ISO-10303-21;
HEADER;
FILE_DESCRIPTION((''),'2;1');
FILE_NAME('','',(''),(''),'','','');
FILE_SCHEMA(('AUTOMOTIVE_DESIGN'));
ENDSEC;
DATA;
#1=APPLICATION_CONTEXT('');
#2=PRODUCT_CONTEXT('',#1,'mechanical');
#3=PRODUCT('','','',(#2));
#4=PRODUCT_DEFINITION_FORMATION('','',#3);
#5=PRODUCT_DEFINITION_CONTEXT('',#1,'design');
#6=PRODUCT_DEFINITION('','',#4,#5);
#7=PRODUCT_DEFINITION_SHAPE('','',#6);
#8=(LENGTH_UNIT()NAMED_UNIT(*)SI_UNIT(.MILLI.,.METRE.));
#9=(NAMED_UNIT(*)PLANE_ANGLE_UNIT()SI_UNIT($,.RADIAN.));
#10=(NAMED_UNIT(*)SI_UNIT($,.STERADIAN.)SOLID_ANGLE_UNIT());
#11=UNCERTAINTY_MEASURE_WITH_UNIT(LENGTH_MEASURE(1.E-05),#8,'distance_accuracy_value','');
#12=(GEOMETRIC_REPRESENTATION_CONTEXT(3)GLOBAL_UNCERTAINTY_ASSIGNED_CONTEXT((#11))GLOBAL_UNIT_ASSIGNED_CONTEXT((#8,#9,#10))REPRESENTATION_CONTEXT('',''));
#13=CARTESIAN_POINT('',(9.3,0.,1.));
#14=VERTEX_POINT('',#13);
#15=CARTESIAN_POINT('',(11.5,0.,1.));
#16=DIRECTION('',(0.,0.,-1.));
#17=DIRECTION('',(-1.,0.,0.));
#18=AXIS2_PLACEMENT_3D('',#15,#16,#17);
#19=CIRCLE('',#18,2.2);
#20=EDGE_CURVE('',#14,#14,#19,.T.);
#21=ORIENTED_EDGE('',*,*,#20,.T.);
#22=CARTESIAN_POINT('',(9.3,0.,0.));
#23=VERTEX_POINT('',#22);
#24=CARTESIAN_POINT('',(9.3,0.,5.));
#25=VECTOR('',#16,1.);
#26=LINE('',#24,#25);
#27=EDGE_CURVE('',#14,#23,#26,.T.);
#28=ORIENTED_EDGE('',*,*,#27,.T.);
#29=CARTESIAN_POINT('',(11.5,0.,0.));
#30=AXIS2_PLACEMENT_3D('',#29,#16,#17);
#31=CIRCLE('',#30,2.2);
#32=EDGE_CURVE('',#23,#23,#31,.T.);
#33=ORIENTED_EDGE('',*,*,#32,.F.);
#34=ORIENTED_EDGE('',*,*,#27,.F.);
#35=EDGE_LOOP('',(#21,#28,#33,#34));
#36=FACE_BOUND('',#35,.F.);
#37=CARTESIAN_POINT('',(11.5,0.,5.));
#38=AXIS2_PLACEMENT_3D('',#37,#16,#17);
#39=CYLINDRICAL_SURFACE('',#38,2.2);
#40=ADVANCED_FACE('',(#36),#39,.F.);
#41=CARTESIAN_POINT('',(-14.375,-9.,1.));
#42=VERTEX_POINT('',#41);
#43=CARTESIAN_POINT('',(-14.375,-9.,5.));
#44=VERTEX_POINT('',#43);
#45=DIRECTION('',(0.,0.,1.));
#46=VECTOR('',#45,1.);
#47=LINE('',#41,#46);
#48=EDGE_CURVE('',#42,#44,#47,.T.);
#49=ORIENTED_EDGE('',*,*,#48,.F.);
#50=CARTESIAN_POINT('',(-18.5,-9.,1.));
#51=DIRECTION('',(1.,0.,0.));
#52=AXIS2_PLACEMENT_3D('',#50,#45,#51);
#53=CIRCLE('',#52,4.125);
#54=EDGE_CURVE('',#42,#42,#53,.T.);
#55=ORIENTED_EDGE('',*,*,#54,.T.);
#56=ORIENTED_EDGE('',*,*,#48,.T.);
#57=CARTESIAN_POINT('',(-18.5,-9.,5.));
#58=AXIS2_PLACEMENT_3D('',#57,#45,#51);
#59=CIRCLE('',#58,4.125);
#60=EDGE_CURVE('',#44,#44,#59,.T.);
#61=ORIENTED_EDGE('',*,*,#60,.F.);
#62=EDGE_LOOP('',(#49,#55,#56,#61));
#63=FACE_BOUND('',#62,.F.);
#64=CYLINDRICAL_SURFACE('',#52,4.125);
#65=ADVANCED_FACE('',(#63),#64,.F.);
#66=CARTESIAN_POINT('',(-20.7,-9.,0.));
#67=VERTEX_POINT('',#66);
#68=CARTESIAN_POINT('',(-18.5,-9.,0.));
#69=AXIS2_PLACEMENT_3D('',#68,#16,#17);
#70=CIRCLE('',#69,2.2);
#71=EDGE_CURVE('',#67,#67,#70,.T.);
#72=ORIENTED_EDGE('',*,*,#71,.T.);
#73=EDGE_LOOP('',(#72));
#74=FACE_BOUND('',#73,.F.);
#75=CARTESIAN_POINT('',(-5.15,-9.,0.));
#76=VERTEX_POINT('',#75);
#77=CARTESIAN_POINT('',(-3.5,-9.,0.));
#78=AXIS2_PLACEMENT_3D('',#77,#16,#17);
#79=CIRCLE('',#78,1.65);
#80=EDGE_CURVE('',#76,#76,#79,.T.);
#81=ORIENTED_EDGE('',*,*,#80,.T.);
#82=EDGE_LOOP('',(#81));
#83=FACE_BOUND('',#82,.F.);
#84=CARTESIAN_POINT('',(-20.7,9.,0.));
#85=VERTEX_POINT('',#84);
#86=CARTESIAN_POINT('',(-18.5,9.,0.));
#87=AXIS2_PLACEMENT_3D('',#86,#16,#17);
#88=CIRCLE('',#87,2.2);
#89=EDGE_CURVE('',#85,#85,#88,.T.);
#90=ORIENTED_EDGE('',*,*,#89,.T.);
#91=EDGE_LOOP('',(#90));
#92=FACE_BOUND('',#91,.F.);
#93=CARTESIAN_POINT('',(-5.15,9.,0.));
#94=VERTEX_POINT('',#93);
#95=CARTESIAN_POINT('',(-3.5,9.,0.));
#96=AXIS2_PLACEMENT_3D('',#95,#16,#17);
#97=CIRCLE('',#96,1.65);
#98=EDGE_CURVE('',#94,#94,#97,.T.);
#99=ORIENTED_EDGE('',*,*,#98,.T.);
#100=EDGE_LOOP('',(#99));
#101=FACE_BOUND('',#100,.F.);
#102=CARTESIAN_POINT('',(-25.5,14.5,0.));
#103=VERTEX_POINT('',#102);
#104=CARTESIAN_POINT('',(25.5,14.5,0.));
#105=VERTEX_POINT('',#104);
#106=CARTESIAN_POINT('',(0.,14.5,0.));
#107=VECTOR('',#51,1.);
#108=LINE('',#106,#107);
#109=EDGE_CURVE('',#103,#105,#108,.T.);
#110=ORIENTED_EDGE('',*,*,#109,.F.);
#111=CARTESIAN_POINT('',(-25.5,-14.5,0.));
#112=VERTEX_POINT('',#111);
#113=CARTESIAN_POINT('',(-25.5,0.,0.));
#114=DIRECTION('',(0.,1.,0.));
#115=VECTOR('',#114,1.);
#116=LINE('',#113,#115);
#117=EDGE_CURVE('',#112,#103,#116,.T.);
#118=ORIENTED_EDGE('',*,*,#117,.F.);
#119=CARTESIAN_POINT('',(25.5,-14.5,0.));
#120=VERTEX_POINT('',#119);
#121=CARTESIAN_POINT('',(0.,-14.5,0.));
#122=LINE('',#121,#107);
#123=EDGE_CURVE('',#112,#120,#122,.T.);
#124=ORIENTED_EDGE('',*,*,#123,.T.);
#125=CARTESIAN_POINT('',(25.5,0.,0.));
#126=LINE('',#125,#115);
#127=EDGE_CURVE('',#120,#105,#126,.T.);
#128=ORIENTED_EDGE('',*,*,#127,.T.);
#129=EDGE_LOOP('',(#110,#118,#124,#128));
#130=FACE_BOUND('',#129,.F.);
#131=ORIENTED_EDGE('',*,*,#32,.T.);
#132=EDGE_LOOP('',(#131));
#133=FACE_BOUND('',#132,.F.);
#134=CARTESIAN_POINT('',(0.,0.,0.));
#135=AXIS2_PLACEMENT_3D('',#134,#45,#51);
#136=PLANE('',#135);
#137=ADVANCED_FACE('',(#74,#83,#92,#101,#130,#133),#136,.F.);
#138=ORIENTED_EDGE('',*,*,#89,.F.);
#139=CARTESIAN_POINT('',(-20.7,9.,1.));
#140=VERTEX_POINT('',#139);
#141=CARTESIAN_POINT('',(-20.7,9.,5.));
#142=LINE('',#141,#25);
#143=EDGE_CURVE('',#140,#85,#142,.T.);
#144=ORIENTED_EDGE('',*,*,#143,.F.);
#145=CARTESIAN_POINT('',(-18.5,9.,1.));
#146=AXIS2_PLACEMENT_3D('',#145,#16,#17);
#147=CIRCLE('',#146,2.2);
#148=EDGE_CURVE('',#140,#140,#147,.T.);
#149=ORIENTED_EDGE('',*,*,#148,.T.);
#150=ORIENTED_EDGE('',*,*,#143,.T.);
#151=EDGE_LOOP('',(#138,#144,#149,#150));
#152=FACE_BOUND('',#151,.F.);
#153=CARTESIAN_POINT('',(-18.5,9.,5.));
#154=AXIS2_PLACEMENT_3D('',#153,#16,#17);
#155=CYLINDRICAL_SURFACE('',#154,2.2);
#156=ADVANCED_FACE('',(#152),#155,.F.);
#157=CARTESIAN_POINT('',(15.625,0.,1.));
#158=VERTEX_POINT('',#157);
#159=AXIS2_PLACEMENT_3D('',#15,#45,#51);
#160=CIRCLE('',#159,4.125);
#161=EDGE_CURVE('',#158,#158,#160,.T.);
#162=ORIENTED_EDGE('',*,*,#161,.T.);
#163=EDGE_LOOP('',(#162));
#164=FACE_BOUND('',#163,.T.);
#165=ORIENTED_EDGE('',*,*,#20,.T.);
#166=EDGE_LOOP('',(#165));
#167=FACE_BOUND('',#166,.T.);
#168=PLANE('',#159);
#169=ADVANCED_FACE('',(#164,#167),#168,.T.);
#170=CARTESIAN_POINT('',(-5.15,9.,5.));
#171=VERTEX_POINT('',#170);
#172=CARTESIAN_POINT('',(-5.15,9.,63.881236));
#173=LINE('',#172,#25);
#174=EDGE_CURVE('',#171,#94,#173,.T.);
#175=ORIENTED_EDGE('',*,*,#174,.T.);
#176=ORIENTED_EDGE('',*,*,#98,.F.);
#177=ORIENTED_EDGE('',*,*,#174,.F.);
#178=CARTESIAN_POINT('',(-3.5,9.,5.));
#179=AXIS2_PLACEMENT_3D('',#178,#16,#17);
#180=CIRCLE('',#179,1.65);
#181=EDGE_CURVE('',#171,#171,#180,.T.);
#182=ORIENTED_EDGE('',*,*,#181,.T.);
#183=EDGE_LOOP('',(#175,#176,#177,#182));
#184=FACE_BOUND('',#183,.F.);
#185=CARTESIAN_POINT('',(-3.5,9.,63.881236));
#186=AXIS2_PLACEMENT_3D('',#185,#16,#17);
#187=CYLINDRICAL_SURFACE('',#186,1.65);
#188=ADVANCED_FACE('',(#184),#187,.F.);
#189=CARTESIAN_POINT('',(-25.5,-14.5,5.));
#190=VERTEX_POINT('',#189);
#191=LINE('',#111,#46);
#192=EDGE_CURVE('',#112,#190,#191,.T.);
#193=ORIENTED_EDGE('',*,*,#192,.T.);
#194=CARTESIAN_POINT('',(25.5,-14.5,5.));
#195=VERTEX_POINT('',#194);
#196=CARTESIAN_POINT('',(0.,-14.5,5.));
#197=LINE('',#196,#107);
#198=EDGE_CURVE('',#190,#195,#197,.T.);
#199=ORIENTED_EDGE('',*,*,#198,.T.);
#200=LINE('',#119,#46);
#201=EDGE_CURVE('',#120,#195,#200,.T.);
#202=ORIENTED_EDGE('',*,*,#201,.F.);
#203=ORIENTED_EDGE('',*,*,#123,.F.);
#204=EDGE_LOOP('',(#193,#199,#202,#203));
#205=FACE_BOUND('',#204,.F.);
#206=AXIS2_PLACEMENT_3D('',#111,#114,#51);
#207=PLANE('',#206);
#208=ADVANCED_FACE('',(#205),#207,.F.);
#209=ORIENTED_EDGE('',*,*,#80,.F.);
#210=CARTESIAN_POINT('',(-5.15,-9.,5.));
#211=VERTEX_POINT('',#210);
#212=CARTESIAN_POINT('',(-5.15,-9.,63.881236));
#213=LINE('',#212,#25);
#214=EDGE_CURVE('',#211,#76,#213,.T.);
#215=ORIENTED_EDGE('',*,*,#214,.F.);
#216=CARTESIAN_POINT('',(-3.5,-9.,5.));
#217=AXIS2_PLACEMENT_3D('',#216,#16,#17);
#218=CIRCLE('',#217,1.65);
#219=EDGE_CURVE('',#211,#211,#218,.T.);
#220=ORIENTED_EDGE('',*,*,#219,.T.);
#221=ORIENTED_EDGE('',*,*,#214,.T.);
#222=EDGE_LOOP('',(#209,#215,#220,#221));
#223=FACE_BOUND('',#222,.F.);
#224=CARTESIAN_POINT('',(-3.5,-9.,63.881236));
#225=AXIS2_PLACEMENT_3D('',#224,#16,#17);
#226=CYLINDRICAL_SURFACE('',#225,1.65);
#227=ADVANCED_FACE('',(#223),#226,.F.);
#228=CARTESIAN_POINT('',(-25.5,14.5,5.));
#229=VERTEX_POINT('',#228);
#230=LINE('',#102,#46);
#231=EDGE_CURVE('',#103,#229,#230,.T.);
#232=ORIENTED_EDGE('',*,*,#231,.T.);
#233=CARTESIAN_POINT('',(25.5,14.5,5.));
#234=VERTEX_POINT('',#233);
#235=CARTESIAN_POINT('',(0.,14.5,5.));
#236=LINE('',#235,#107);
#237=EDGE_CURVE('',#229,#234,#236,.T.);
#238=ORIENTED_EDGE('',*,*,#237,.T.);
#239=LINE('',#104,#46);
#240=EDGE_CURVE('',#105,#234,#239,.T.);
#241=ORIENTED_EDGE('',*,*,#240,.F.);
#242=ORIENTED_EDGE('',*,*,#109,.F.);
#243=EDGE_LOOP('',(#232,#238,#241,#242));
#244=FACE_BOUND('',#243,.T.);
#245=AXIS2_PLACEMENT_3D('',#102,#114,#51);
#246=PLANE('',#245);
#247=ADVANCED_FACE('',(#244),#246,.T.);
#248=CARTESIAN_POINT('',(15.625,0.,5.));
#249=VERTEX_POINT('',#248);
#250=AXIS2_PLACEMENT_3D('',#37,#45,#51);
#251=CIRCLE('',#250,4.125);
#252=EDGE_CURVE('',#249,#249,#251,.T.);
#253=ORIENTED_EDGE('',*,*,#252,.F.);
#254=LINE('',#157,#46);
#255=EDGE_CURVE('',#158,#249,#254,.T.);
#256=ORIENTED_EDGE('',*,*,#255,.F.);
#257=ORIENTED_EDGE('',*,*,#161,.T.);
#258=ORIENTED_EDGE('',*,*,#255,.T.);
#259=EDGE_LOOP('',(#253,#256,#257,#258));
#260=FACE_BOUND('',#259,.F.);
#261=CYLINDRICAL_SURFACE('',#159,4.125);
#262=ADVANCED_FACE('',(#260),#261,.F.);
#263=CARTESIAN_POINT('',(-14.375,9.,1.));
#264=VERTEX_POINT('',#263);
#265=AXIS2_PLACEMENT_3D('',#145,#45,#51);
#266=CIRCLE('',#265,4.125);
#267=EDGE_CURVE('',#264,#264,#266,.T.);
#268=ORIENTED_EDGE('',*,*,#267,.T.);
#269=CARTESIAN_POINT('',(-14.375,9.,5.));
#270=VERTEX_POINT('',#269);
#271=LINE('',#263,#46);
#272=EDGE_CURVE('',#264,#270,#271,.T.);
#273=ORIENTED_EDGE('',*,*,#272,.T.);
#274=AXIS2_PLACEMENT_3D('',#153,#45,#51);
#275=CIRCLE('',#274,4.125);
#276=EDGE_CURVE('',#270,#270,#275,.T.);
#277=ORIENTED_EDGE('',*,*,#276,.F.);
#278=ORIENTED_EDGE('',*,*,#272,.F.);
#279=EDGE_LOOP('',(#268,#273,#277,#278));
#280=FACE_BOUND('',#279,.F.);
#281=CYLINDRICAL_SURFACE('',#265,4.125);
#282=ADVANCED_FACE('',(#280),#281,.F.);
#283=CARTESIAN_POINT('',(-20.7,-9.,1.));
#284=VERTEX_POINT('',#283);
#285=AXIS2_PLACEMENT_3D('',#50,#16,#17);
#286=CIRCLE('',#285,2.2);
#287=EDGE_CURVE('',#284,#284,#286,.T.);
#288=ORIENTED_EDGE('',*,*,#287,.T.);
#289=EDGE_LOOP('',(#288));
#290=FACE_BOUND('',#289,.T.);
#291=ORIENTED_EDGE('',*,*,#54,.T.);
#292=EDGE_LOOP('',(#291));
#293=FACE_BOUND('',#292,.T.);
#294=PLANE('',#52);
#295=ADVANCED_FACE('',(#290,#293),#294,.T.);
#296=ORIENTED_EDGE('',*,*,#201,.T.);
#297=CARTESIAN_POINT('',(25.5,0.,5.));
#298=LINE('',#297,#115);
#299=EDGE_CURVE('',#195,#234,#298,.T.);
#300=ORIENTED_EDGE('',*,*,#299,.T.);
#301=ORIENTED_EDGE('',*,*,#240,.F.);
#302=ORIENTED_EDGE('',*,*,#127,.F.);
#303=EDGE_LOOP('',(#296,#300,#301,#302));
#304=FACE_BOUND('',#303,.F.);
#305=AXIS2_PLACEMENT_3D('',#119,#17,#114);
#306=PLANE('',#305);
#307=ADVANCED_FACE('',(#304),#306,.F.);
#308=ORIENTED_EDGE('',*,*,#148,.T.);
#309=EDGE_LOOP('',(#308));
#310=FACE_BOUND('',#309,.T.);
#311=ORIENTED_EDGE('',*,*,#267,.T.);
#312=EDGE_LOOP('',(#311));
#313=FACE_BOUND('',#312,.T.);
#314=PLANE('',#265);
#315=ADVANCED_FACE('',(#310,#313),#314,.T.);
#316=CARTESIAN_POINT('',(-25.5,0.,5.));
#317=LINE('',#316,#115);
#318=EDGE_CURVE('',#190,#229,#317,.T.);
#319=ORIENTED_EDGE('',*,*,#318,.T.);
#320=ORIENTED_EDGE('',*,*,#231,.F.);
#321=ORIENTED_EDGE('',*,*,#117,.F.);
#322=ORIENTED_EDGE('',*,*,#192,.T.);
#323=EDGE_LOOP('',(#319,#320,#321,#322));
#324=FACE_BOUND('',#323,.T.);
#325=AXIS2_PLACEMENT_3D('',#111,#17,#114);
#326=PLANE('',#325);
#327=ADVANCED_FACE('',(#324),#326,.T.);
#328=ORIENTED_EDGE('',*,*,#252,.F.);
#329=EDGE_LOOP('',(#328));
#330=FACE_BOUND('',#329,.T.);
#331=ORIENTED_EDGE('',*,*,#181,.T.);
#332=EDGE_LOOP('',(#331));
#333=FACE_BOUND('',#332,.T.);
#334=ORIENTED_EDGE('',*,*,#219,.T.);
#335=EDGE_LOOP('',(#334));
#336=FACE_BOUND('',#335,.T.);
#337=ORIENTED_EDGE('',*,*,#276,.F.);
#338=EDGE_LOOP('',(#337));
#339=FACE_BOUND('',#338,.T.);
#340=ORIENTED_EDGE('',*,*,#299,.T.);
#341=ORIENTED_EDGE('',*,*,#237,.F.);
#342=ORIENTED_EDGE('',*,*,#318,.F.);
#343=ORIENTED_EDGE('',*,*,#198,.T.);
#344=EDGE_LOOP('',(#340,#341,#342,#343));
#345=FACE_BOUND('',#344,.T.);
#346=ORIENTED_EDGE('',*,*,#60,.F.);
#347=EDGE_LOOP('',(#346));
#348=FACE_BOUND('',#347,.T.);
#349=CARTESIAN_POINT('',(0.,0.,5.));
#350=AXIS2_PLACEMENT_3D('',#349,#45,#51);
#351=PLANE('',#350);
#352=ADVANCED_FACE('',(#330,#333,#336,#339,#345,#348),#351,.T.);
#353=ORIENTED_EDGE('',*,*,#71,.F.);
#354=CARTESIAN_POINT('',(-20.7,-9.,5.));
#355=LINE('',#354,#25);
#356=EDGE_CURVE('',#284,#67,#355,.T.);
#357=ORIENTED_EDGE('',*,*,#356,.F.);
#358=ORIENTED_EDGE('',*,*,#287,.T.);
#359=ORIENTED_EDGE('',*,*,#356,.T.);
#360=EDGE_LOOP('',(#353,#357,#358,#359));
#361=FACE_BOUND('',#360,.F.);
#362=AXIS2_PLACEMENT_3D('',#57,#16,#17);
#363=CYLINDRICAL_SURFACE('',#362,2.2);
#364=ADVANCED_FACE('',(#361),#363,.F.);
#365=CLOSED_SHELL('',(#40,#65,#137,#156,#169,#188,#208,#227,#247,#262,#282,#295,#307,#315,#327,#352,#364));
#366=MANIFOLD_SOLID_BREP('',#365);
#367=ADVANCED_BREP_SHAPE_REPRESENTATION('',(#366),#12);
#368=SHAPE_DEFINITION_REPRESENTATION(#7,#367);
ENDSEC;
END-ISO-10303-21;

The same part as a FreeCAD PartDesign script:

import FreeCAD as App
import Part
import Sketcher

doc = App.newDocument("Part")
body = doc.addObject("PartDesign::Body", "Body")

sketch1 = body.newObject("Sketcher::SketchObject", "Sketch")
sketch1.AttachmentSupport = (doc.getObject("XY_Plane"), [""])
sketch1.MapMode = "FlatFace"
sketch1.addGeometry([
    Part.LineSegment(App.Vector(-25.5, 14.5, 0), App.Vector(-25.5, -14.5, 0)),
    Part.LineSegment(App.Vector(-25.5, -14.5, 0), App.Vector(25.5, -14.5, 0)),
    Part.LineSegment(App.Vector(25.5, -14.5, 0), App.Vector(25.5, 14.5, 0)),
    Part.LineSegment(App.Vector(25.5, 14.5, 0), App.Vector(-25.5, 14.5, 0)),
], False)
sketch1.addConstraint([
    Sketcher.Constraint("Coincident", 0, 2, 1, 1),
    Sketcher.Constraint("Coincident", 1, 2, 2, 1),
    Sketcher.Constraint("Coincident", 2, 2, 3, 1),
    Sketcher.Constraint("Coincident", 3, 2, 0, 1),
    Sketcher.Constraint("Vertical", 0),
    Sketcher.Constraint("Horizontal", 1),
    Sketcher.Constraint("Vertical", 2),
    Sketcher.Constraint("Horizontal", 3),
    Sketcher.Constraint("Symmetric", 0, 2, 2, 2, -1, 1),
    Sketcher.Constraint("DistanceX", 1, 1, 1, 2, 51.0),
    Sketcher.Constraint("DistanceY", 0, 2, 0, 1, 29.0),
])
pad1 = body.newObject("PartDesign::Pad", "Pad")
pad1.Profile = sketch1
pad1.Length = 5

sketch2 = body.newObject("Sketcher::SketchObject", "Sketch001")
sketch2.AttachmentSupport = (doc.getObject("XY_Plane"), [""])
sketch2.MapMode = "FlatFace"
sketch2.AttachmentOffset = App.Placement(App.Vector(0, 0, 5), App.Rotation())
sketch2.addGeometry([
    Part.Circle(App.Vector(-18.5, 9, 0), App.Vector(0, 0, 1), 2.2),
    Part.Circle(App.Vector(-18.5, -9, 0), App.Vector(0, 0, 1), 2.2),
    Part.Circle(App.Vector(11.5, 0, 0), App.Vector(0, 0, 1), 2.2),
], False)
sketch2.addConstraint([
    Sketcher.Constraint("Equal", 0, 1),
    Sketcher.Constraint("Equal", 1, 2),
    Sketcher.Constraint("Symmetric", 0, 3, 1, 3, -1),
    Sketcher.Constraint("PointOnObject", 2, 3, -1),
    Sketcher.Constraint("Diameter", 0, 4.4),
    Sketcher.Constraint("DistanceY", -1, 1, 0, 3, 9.0),
    Sketcher.Constraint("DistanceX", 0, 3, 2, 3, 30.0),
    Sketcher.Constraint("DistanceX", 0, 3, -1, 1, 18.5),
])
doc.recompute()
hole = body.newObject("PartDesign::Hole", "Hole")
hole.Profile = sketch2
hole.ThreadType = "None"
hole.Diameter = 4.4
hole.DepthType = "Dimension"
hole.Depth = 6
hole.DrillPoint = "Angled"
hole.DrillPointAngle = 118
hole.HoleCutType = "Counterbore"
hole.HoleCutDiameter = 8.25
hole.HoleCutDepth = 4

sketch3 = body.newObject("Sketcher::SketchObject", "Sketch002")
sketch3.AttachmentSupport = (doc.getObject("XY_Plane"), [""])
sketch3.MapMode = "FlatFace"
sketch3.AttachmentOffset = App.Placement(App.Vector(0, 0, 5), App.Rotation())
sketch3.addGeometry([
    Part.Circle(App.Vector(-3.5, 9, 0), App.Vector(0, 0, 1), 1.65),
    Part.Circle(App.Vector(-3.5, -9, 0), App.Vector(0, 0, 1), 1.65),
], False)
sketch3.addConstraint([
    Sketcher.Constraint("Equal", 0, 1),
    Sketcher.Constraint("Symmetric", 0, 3, 1, 3, -1),
    Sketcher.Constraint("Diameter", 0, 3.3),
    Sketcher.Constraint("DistanceY", -1, 1, 0, 3, 9.0),
    Sketcher.Constraint("DistanceX", 0, 3, -1, 1, 3.5),
])
doc.recompute()
hole2 = body.newObject("PartDesign::Hole", "Hole001")
hole2.Profile = sketch3
hole2.ThreadType = "None"
hole2.Diameter = 3.3
hole2.DepthType = "ThroughAll"

doc.recompute()
